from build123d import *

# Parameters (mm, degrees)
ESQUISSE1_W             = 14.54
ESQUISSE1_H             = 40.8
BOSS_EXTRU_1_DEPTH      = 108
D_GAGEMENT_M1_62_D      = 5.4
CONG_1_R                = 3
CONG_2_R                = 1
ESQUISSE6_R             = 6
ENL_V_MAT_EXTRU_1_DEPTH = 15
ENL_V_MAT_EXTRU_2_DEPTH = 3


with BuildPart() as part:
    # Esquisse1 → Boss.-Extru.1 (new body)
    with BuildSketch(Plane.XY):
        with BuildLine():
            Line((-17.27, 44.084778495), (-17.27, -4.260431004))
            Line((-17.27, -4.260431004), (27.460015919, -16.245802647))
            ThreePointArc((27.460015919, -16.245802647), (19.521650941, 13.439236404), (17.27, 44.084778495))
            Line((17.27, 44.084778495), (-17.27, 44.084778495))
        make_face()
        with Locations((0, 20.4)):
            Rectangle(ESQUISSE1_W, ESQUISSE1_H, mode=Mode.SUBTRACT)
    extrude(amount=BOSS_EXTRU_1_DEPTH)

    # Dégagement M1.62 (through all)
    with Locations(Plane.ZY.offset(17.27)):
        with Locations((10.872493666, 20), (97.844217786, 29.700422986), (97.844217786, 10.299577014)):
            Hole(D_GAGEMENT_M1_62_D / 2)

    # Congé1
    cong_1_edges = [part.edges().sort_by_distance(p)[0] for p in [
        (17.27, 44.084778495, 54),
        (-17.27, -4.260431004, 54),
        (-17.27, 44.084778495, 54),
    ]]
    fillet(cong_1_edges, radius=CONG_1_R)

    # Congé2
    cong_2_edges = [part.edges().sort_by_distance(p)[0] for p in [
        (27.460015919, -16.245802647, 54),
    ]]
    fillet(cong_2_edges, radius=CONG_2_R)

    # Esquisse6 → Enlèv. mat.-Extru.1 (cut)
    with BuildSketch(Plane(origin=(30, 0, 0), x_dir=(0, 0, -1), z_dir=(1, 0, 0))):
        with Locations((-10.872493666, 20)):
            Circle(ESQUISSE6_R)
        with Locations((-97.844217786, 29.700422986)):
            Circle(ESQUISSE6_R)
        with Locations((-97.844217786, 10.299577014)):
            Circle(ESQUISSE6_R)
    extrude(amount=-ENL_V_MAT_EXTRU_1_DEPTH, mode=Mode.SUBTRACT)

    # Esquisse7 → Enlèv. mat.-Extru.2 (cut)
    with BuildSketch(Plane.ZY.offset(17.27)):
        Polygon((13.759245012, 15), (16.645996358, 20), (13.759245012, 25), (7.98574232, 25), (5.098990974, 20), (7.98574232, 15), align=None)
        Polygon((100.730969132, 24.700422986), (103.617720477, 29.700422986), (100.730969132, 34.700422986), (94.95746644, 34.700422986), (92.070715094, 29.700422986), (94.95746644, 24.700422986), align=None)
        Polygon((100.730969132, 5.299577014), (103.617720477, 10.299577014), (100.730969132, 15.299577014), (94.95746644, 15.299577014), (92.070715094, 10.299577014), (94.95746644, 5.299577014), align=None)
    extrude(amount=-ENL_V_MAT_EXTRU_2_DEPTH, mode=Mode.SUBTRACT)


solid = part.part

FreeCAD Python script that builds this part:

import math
import FreeCAD as App
import Part
import Sketcher
Q = App.Units.Quantity


def edges_at(feature, points):
    """Names of the edges that pass closest to the given points."""
    edges = feature.Shape.Edges
    near = lambda p: min(range(len(edges)), key=lambda i: edges[i].distToShape(Part.Vertex(*p))[0])
    return sorted({f"Edge{near(p) + 1}" for p in points})


def add_polygon(sketch, points):
    """Adds a closed chain of lines whose ends are joined by coincident constraints."""
    first, n = sketch.GeometryCount, len(points)
    for a, b in zip(points, points[1:] + points[:1]):
        sketch.addGeometry(Part.LineSegment(App.Vector(*a, 0), App.Vector(*b, 0)), False)
    for i in range(n):
        sketch.addConstraint(Sketcher.Constraint("Coincident", first + i, 2, first + (i + 1) % n, 1))

doc = App.newDocument("Part")
params = doc.addObject("Spreadsheet::Sheet", "Params")
for row, (alias, value) in enumerate([
    ("sketch1_height", "40.8 mm"),
    ("sketch1_width", "34.54 mm"),
    ("pad1_length", "108 mm"),
    ("sketch2_diameter", "5.4 mm"),
    ("hole_diameter", "5.4 mm"),
    ("fillet_radius", "3 mm"),
    ("fillet2_radius", "1 mm"),
    ("sketch3_diameter", "12 mm"),
    ("pocket1_length", "15 mm"),
    ("pocket2_length", "3 mm"),
], start=1):
    params.set(f"A{row}", alias)
    params.set(f"B{row}", "=" + value)
    params.setAlias(f"B{row}", alias)

body = doc.addObject("PartDesign::Body", "Body")

# Sketch on XY plane
sketch1 = body.newObject("Sketcher::SketchObject", "Sketch")
sketch1.AttachmentSupport = (doc.getObject("XY_Plane"), [""])
sketch1.MapMode = "FlatFace"
sketch1.addGeometry(Part.LineSegment(App.Vector(-17, 44, 0), App.Vector(-17, -4, 0)), False)  # 0
sketch1.addGeometry(Part.LineSegment(App.Vector(-17, -4, 0), App.Vector(27, -16, 0)), False)  # 1
sketch1.addGeometry(Part.ArcOfCircle(Part.Circle(App.Vector(181, 41, 0), App.Vector(0, 0, 1), 164), math.radians(179), math.radians(200)), False)  # 2
sketch1.addGeometry(Part.LineSegment(App.Vector(17, 44, 0), App.Vector(-17, 44, 0)), False)  # 3
add_polygon(sketch1, [(7, 0), (-7, 0), (-7, 41), (7, 41)])  # lines 4-7
sketch1.addConstraint([
    Sketcher.Constraint("Coincident", 0, 2, 1, 1),
    Sketcher.Constraint("Coincident", 1, 2, 2, 2),
    Sketcher.Constraint("Coincident", 2, 1, 3, 1),
    Sketcher.Constraint("Coincident", 3, 2, 0, 1),
    Sketcher.Constraint("Vertical", 0),
    Sketcher.Constraint("Horizontal", 3),
    Sketcher.Constraint("Horizontal", 4),
    Sketcher.Constraint("Vertical", 5),
    Sketcher.Constraint("Horizontal", 6),
    Sketcher.Constraint("Vertical", 7),
    Sketcher.Constraint("Symmetric", 4, 2, 7, 2, -1, 1),
    Sketcher.Constraint("Angle", 1, Q("-15 deg")),
    Sketcher.Constraint("DistanceY", 5, 1, 5, 2, Q("40.8 mm")),
    Sketcher.Constraint("DistanceX", 0, 2, 4, 2, Q("10 mm")),
    Sketcher.Constraint("DistanceX", 6, 2, 2, 1, Q("10 mm")),
    Sketcher.Constraint("DistanceX", 3, 2, 3, 1, Q("34.54 mm")),
    Sketcher.Constraint("Radius", 2, Q("163.720598 mm")),
    Sketcher.Constraint("DistanceY", 0, 2, 0, 1, Q("48.345209 mm")),
    Sketcher.Constraint("Distance", 1, Q("46.30792 mm")),
    Sketcher.Constraint("DistanceY", 0, 2, -1, 1, Q("4.260431 mm")),
])
sketch1.setExpression("Constraints[16]", "Params.sketch1_height")
sketch1.setExpression("Constraints[19]", "Params.sketch1_width")
pad1 = body.newObject("PartDesign::Pad", "Pad")
pad1.Profile = sketch1
pad1.setExpression("Length", "Params.pad1_length")

# Sketch on YZ plane
sketch2 = body.newObject("Sketcher::SketchObject", "Sketch001")
sketch2.AttachmentSupport = (doc.getObject("YZ_Plane"), [""])
sketch2.MapMode = "FlatFace"
sketch2.AttachmentOffset = App.Placement(App.Vector(0, 0, -17.27), App.Rotation())
sketch2.addGeometry([
    Part.Circle(App.Vector(20, 10.9, 0), App.Vector(0, 0, 1), 2.7),
    Part.Circle(App.Vector(29.7, 97.8, 0), App.Vector(0, 0, 1), 2.7),
    Part.Circle(App.Vector(10.3, 97.8, 0), App.Vector(0, 0, 1), 2.7),
], False)
sketch2.addConstraint([
    Sketcher.Constraint("Equal", 0, 1),
    Sketcher.Constraint("Equal", 1, 2),
    Sketcher.Constraint("Horizontal", 1, 3, 2, 3),
    Sketcher.Constraint("Diameter", 0, Q("5.4 mm")),
    Sketcher.Constraint("DistanceX", -1, 1, 0, 3, Q("20 mm")),
    Sketcher.Constraint("DistanceY", -1, 1, 0, 3, Q("10.872494 mm")),
    Sketcher.Constraint("DistanceX", -1, 1, 1, 3, Q("29.700423 mm")),
    Sketcher.Constraint("DistanceY", -1, 1, 1, 3, Q("97.844218 mm")),
    Sketcher.Constraint("DistanceX", -1, 1, 2, 3, Q("10.299577 mm")),
])
sketch2.setExpression("Constraints[3]", "Params.sketch2_diameter")
doc.recompute()
hole = body.newObject("PartDesign::Hole", "Hole")
hole.Profile = sketch2
hole.ThreadType = "None"
hole.setExpression("Diameter", "Params.hole_diameter")
hole.DepthType = "ThroughAll"
hole.Reversed = True
doc.recompute()

fillet = body.newObject("PartDesign::Fillet", "Fillet")
fillet.Base = (hole, edges_at(hole, [(17.27, 44.085, 54), (-17.27, -4.26, 54), (-17.27, 44.085, 54)]))
fillet.setExpression("Radius", "Params.fillet_radius")
doc.recompute()

fillet2 = body.newObject("PartDesign::Fillet", "Fillet001")
fillet2.Base = (fillet, edges_at(fillet, [(27.46, -16.246, 54)]))
fillet2.setExpression("Radius", "Params.fillet2_radius")

# Sketch on YZ plane
sketch3 = body.newObject("Sketcher::SketchObject", "Sketch002")
sketch3.AttachmentSupport = (doc.getObject("YZ_Plane"), [""])
sketch3.MapMode = "FlatFace"
sketch3.AttachmentOffset = App.Placement(App.Vector(0, 0, 30), App.Rotation())
sketch3.addGeometry([
    Part.Circle(App.Vector(20, 11, 0), App.Vector(0, 0, 1), 6),
    Part.Circle(App.Vector(30, 98, 0), App.Vector(0, 0, 1), 6),
    Part.Circle(App.Vector(10, 98, 0), App.Vector(0, 0, 1), 6),
], False)
sketch3.addConstraint([
    Sketcher.Constraint("Equal", 0, 1),
    Sketcher.Constraint("Equal", 1, 2),
    Sketcher.Constraint("Horizontal", 1, 3, 2, 3),
    Sketcher.Constraint("Diameter", 0, Q("12 mm")),
    Sketcher.Constraint("DistanceX", -1, 1, 0, 3, Q("20 mm")),
    Sketcher.Constraint("DistanceY", -1, 1, 0, 3, Q("10.872494 mm")),
    Sketcher.Constraint("DistanceX", -1, 1, 1, 3, Q("29.700423 mm")),
    Sketcher.Constraint("DistanceY", -1, 1, 1, 3, Q("97.844218 mm")),
    Sketcher.Constraint("DistanceX", -1, 1, 2, 3, Q("10.299577 mm")),
])
sketch3.setExpression("Constraints[3]", "Params.sketch3_diameter")
pocket1 = body.newObject("PartDesign::Pocket", "Pocket")
pocket1.Profile = sketch3
pocket1.setExpression("Length", "Params.pocket1_length")

# Sketch on YZ plane
sketch4 = body.newObject("Sketcher::SketchObject", "Sketch003")
sketch4.AttachmentSupport = (doc.getObject("YZ_Plane"), [""])
sketch4.MapMode = "FlatFace"
sketch4.AttachmentOffset = App.Placement(App.Vector(0, 0, -17.27), App.Rotation())
add_polygon(sketch4, [(15, 14), (20, 17), (25, 14), (25, 8), (20, 5), (15, 8)])  # lines 0-5
add_polygon(sketch4, [(25, 101), (30, 104), (35, 101), (35, 95), (30, 92), (25, 95)])  # lines 6-11
add_polygon(sketch4, [(5, 101), (10, 104), (15, 101), (15, 95), (10, 92), (5, 95)])  # lines 12-17
sketch4.addConstraint([
    Sketcher.Constraint("Vertical", 2),
    Sketcher.Constraint("Vertical", 5),
    Sketcher.Constraint("Vertical", 8),
    Sketcher.Constraint("Vertical", 11),
    Sketcher.Constraint("Vertical", 14),
    Sketcher.Constraint("Vertical", 17),
    Sketcher.Constraint("Parallel", 0, 3),
    Sketcher.Constraint("Parallel", 1, 4),
    Sketcher.Constraint("Parallel", 3, 6),
    Sketcher.Constraint("Parallel", 4, 7),
    Sketcher.Constraint("Parallel", 6, 9),
    Sketcher.Constraint("Parallel", 7, 10),
    Sketcher.Constraint("Parallel", 9, 12),
    Sketcher.Constraint("Parallel", 10, 13),
    Sketcher.Constraint("Parallel", 12, 15),
    Sketcher.Constraint("Parallel", 13, 16),
    Sketcher.Constraint("Horizontal", 2, 2, 4, 2),
    Sketcher.Constraint("Horizontal", 1, 2, 5, 2),
    Sketcher.Constraint("Horizontal", 8, 2, 10, 2),
    Sketcher.Constraint("Horizontal", 7, 2, 11, 2),
    Sketcher.Constraint("Horizontal", 6, 2, 12, 2),
    Sketcher.Constraint("Horizontal", 11, 2, 13, 2),
    Sketcher.Constraint("Horizontal", 10, 2, 14, 2),
    Sketcher.Constraint("Horizontal", 9, 2, 15, 2),
    Sketcher.Constraint("Horizontal", 14, 2, 16, 2),
    Sketcher.Constraint("Vertical", 0, 2, 3, 2),
    Sketcher.Constraint("Equal", 5, 8),
    Sketcher.Constraint("Equal", 4, 6),
    Sketcher.Constraint("Angle", 0, Q("30 deg")),
    Sketcher.Constraint("DistanceX", -1, 1, 0, 2, Q("20 mm")),
    Sketcher.Constraint("DistanceX", -1, 1, 1, 2, Q("25 mm")),
    Sketcher.Constraint("DistanceY", 2, 2, 2, 1, Q("5.773503 mm")),
    Sketcher.Constraint("DistanceY", -1, 1, 3, 2, Q("5.098991 mm")),
    Sketcher.Constraint("DistanceY", -1, 1, 6, 2, Q("103.61772 mm")),
    Sketcher.Constraint("DistanceX", -1, 1, 6, 2, Q("29.700423 mm")),
    Sketcher.Constraint("DistanceX", -1, 1, 12, 2, Q("10.299577 mm")),
])
pocket2 = body.newObject("PartDesign::Pocket", "Pocket001")
pocket2.Profile = sketch4
pocket2.setExpression("Length", "Params.pocket2_length")
pocket2.Reversed = True

doc.recompute()
